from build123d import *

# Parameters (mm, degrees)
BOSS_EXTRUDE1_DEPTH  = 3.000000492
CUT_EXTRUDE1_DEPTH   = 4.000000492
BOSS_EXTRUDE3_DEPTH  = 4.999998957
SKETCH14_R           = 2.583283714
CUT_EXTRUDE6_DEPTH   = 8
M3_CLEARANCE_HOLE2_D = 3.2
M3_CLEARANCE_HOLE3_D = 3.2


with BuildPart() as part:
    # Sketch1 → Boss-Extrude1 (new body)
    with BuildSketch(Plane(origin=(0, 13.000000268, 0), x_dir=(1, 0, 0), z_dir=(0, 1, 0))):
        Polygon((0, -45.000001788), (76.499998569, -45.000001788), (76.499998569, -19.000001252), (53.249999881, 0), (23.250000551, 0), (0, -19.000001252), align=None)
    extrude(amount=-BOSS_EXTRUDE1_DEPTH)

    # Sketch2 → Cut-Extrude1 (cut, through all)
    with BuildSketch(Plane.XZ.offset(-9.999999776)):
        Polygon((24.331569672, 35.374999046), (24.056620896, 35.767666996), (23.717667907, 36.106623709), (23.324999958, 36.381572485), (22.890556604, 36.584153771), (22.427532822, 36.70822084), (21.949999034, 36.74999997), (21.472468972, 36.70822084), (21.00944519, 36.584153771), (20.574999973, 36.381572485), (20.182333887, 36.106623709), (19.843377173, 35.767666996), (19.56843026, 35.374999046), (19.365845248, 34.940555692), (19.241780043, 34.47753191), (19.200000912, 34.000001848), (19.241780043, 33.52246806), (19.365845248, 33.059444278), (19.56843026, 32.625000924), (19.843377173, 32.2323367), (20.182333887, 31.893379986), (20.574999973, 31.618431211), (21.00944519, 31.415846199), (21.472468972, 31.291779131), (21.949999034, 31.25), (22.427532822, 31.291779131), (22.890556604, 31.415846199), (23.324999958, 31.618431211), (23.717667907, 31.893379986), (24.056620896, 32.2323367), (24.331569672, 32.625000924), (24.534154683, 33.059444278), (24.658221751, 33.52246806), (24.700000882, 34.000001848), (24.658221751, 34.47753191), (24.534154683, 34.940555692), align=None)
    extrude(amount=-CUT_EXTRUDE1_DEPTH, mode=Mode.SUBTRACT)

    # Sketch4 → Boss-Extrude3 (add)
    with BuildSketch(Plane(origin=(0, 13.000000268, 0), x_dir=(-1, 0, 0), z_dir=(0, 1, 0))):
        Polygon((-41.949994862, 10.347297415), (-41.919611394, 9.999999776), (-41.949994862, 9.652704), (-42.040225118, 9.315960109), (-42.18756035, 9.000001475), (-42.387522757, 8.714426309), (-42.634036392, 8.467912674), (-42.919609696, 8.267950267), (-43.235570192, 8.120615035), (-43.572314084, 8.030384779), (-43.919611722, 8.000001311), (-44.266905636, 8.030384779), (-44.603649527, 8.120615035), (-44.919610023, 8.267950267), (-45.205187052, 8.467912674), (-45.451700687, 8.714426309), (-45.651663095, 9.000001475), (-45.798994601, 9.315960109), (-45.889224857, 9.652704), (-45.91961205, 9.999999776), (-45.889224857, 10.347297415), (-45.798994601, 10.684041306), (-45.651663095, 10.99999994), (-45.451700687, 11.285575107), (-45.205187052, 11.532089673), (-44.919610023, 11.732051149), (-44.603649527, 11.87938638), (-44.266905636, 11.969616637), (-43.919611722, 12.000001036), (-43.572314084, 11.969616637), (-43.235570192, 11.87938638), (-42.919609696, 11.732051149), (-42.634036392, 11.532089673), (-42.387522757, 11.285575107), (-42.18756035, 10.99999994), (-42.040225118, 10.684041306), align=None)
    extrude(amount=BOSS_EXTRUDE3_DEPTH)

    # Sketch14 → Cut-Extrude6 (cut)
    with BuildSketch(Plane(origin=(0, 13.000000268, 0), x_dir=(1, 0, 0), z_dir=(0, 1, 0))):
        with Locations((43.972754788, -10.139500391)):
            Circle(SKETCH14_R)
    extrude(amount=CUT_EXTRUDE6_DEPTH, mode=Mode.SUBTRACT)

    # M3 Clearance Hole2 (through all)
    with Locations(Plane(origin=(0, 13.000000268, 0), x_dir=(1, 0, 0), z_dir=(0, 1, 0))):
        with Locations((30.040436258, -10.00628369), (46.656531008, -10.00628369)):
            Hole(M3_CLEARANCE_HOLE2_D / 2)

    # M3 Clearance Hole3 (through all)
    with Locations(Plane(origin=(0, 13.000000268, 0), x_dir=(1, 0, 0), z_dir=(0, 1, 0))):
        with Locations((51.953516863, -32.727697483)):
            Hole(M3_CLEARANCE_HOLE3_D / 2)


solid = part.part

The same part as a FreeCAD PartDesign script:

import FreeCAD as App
import Part
import Sketcher
from FreeCAD import Vector
Q = App.Units.Quantity


def add_polygon(sketch, points):
    """Adds a closed chain of lines whose ends are joined by coincident constraints."""
    first, n = sketch.GeometryCount, len(points)
    for a, b in zip(points, points[1:] + points[:1]):
        sketch.addGeometry(Part.LineSegment(App.Vector(*a, 0), App.Vector(*b, 0)), False)
    for i in range(n):
        sketch.addConstraint(Sketcher.Constraint("Coincident", first + i, 2, first + (i + 1) % n, 1))

doc = App.newDocument("Part")
body = doc.addObject("PartDesign::Body", "Body")

# Sketch on XZ plane
sketch1 = body.newObject("Sketcher::SketchObject", "Sketch")
sketch1.AttachmentSupport = (doc.getObject("XZ_Plane"), [""])
sketch1.MapMode = "FlatFace"
sketch1.AttachmentOffset = App.Placement(Vector(0, 0, -13), App.Rotation())
add_polygon(sketch1, [(0, 45), (76, 45), (76, 19), (53, 0), (23, 0), (0, 19)])  # lines 0-5
sketch1.addConstraint(Sketcher.Constraint("Horizontal", 0))
sketch1.addConstraint(Sketcher.Constraint("Vertical", 1))
sketch1.addConstraint(Sketcher.Constraint("Horizontal", 3))
sketch1.addConstraint(Sketcher.Constraint("Vertical", 5))
sketch1.addConstraint(Sketcher.Constraint("PointOnObject", 2, 2, -1))
sketch1.addConstraint(Sketcher.Constraint("PointOnObject", 4, 2, -2))
sketch1.addConstraint(Sketcher.Constraint("Horizontal", 1, 2, 4, 2))
sketch1.addConstraint(Sketcher.Constraint("Equal", 2, 4))
sketch1.addConstraint(Sketcher.Constraint("DistanceX", 3, 2, 3, 1, 29.999999))
sketch1.addConstraint(Sketcher.Constraint("DistanceY", 1, 2, 1, 1, 26.000001))
sketch1.addConstraint(Sketcher.Constraint("DistanceX", 0, 1, 0, 2, 76.499999))
sketch1.addConstraint(Sketcher.Constraint("DistanceY", -1, 1, 0, 2, 45.000002))
pad1 = body.newObject("PartDesign::Pad", "Pad")
pad1.Profile = sketch1
pad1.Length = 3

# Sketch on XZ plane
sketch2 = body.newObject("Sketcher::SketchObject", "Sketch001")
sketch2.AttachmentSupport = (doc.getObject("XZ_Plane"), [""])
sketch2.MapMode = "FlatFace"
sketch2.AttachmentOffset = App.Placement(Vector(0, 0, -10), App.Rotation())
add_polygon(sketch2, [(24.33, 35.37), (24.06, 35.77), (23.72, 36.11), (23.32, 36.38), (22.89, 36.58), (22.43, 36.71), (21.95, 36.75), (21.47, 36.71), (21.01, 36.58), (20.57, 36.38), (20.18, 36.11), (19.84, 35.77), (19.57, 35.37), (19.37, 34.94), (19.24, 34.48), (19.2, 34), (19.24, 33.52), (19.37, 33.06), (19.57, 32.63), (19.84, 32.23), (20.18, 31.89), (20.57, 31.62), (21.01, 31.42), (21.47, 31.29), (21.95, 31.25), (22.43, 31.29), (22.89, 31.42), (23.32, 31.62), (23.72, 31.89), (24.06, 32.23), (24.33, 32.63), (24.53, 33.06), (24.66, 33.52), (24.7, 34), (24.66, 34.48), (24.53, 34.94)])  # lines 0-35
sketch2.addConstraint(Sketcher.Constraint("Perpendicular", 5, 14))
sketch2.addConstraint(Sketcher.Constraint("Perpendicular", 6, 15))
sketch2.addConstraint(Sketcher.Constraint("Perpendicular", 9, 18))
sketch2.addConstraint(Sketcher.Constraint("Perpendicular", 10, 19))
sketch2.addConstraint(Sketcher.Constraint("Perpendicular", 12, 21))
sketch2.addConstraint(Sketcher.Constraint("Parallel", 4, 22))
sketch2.addConstraint(Sketcher.Constraint("Perpendicular", 14, 23))
sketch2.addConstraint(Sketcher.Constraint("Perpendicular", 15, 24))
sketch2.addConstraint(Sketcher.Constraint("Parallel", 7, 25))
sketch2.addConstraint(Sketcher.Constraint("Perpendicular", 17, 26))
sketch2.addConstraint(Sketcher.Constraint("Perpendicular", 18, 27))
sketch2.addConstraint(Sketcher.Constraint("Perpendicular", 21, 30))
sketch2.addConstraint(Sketcher.Constraint("Perpendicular", 22, 31))
sketch2.addConstraint(Sketcher.Constraint("Perpendicular", 23, 32))
sketch2.addConstraint(Sketcher.Constraint("Perpendicular", 24, 33))
sketch2.addConstraint(Sketcher.Constraint("Perpendicular", 25, 34))
sketch2.addConstraint(Sketcher.Constraint("Perpendicular", 26, 35))
sketch2.addConstraint(Sketcher.Constraint("Horizontal", 4, 2, 6, 2))
sketch2.addConstraint(Sketcher.Constraint("Horizontal", 3, 2, 7, 2))
sketch2.addConstraint(Sketcher.Constraint("Horizontal", 2, 2, 8, 2))
sketch2.addConstraint(Sketcher.Constraint("Horizontal", 1, 2, 9, 2))
sketch2.addConstraint(Sketcher.Constraint("Horizontal", 0, 2, 10, 2))
sketch2.addConstraint(Sketcher.Constraint("Horizontal", 22, 2, 24, 2))
sketch2.addConstraint(Sketcher.Constraint("Horizontal", 21, 2, 25, 2))
sketch2.addConstraint(Sketcher.Constraint("Horizontal", 20, 2, 26, 2))
sketch2.addConstraint(Sketcher.Constraint("Horizontal", 19, 2, 27, 2))
sketch2.addConstraint(Sketcher.Constraint("Horizontal", 18, 2, 28, 2))
sketch2.addConstraint(Sketcher.Constraint("Horizontal", 17, 2, 29, 2))
sketch2.addConstraint(Sketcher.Constraint("Horizontal", 16, 2, 30, 2))
sketch2.addConstraint(Sketcher.Constraint("Horizontal", 15, 2, 31, 2))
sketch2.addConstraint(Sketcher.Constraint("Horizontal", 14, 2, 32, 2))
sketch2.addConstraint(Sketcher.Constraint("Horizontal", 13, 2, 33, 2))
sketch2.addConstraint(Sketcher.Constraint("Horizontal", 12, 2, 34, 2))
sketch2.addConstraint(Sketcher.Constraint("Horizontal", 11, 2, 35, 2))
sketch2.addConstraint(Sketcher.Constraint("Vertical", 13, 2, 15, 2))
sketch2.addConstraint(Sketcher.Constraint("Vertical", 12, 2, 16, 2))
sketch2.addConstraint(Sketcher.Constraint("Vertical", 11, 2, 17, 2))
sketch2.addConstraint(Sketcher.Constraint("Vertical", 10, 2, 18, 2))
sketch2.addConstraint(Sketcher.Constraint("Vertical", 9, 2, 19, 2))
sketch2.addConstraint(Sketcher.Constraint("Vertical", 8, 2, 20, 2))
sketch2.addConstraint(Sketcher.Constraint("Vertical", 7, 2, 21, 2))
sketch2.addConstraint(Sketcher.Constraint("Vertical", 6, 2, 22, 2))
sketch2.addConstraint(Sketcher.Constraint("Vertical", 5, 2, 23, 2))
sketch2.addConstraint(Sketcher.Constraint("Vertical", 4, 2, 24, 2))
sketch2.addConstraint(Sketcher.Constraint("Vertical", 3, 2, 25, 2))
sketch2.addConstraint(Sketcher.Constraint("Vertical", 2, 2, 26, 2))
sketch2.addConstraint(Sketcher.Constraint("Vertical", 1, 2, 27, 2))
sketch2.addConstraint(Sketcher.Constraint("Vertical", 0, 2, 28, 2))
sketch2.addConstraint(Sketcher.Constraint("Vertical", 30, 2, 34, 2))
sketch2.addConstraint(Sketcher.Constraint("Vertical", 29, 2, 35, 2))
sketch2.addConstraint(Sketcher.Constraint("Equal", 0, 2))
sketch2.addConstraint(Sketcher.Constraint("Equal", 1, 3))
sketch2.addConstraint(Sketcher.Constraint("Equal", 2, 4))
sketch2.addConstraint(Sketcher.Constraint("Equal", 4, 5))
sketch2.addConstraint(Sketcher.Constraint("Equal", 3, 6))
sketch2.addConstraint(Sketcher.Constraint("Equal", 8, 9))
sketch2.addConstraint(Sketcher.Constraint("Equal", 9, 10))
sketch2.addConstraint(Sketcher.Constraint("Equal", 10, 11))
sketch2.addConstraint(Sketcher.Constraint("Equal", 10, 12))
sketch2.addConstraint(Sketcher.Constraint("Equal", 12, 13))
sketch2.addConstraint(Sketcher.Constraint("Equal", 12, 14))
sketch2.addConstraint(Sketcher.Constraint("Equal", 17, 18))
sketch2.addConstraint(Sketcher.Constraint("Equal", 17, 19))
sketch2.addConstraint(Sketcher.Constraint("Equal", 20, 21))
sketch2.addConstraint(Sketcher.Constraint("Equal", 29, 31))
sketch2.addConstraint(Sketcher.Constraint("Angle", 21, Q("-24.999987 deg")))
sketch2.addConstraint(Sketcher.Constraint("DistanceY", -1, 1, 14, 2, 34.000002))
sketch2.addConstraint(Sketcher.Constraint("DistanceX", -1, 1, 14, 2, 19.200001))
sketch2.addConstraint(Sketcher.Constraint("DistanceX", -1, 1, 32, 2, 24.700001))
sketch2.addConstraint(Sketcher.Constraint("DistanceX", -1, 1, 2, 2, 23.325))
sketch2.addConstraint(Sketcher.Constraint("DistanceX", 6, 2, 1, 2, 2.245199))
sketch2.addConstraint(Sketcher.Constraint("DistanceX", 12, 2, 7, 2, 1.6436))
pocket1 = body.newObject("PartDesign::Pocket", "Pocket")
pocket1.Profile = sketch2
pocket1.Type = "ThroughAll"

# Sketch on XZ plane
sketch3 = body.newObject("Sketcher::SketchObject", "Sketch002")
sketch3.AttachmentSupport = (doc.getObject("XZ_Plane"), [""])
sketch3.MapMode = "FlatFace"
sketch3.AttachmentOffset = App.Placement(Vector(0, 0, -13), App.Rotation())
add_polygon(sketch3, [(41.919611, 10), (41.949995, 10.347297), (42.040225, 10.684041), (42.18756, 11), (42.387523, 11.285575), (42.634036, 11.53209), (42.91961, 11.732051), (43.23557, 11.879386), (43.572314, 11.969617), (43.919612, 12.000001), (44.266906, 11.969617), (44.60365, 11.879386), (44.91961, 11.732051), (45.205187, 11.53209), (45.451701, 11.285575), (45.651663, 11), (45.798995, 10.684041), (45.889225, 10.347297), (45.919612, 10), (45.889225, 9.652704), (45.798995, 9.31596), (45.651663, 9.000001), (45.451701, 8.714426), (45.205187, 8.467913), (44.91961, 8.26795), (44.60365, 8.120615), (44.266906, 8.030385), (43.919612, 8.000001), (43.572314, 8.030385), (43.23557, 8.120615), (42.91961, 8.26795), (42.634036, 8.467913), (42.387523, 8.714426), (42.18756, 9.000001), (42.040225, 9.31596), (41.949995, 9.652704)])  # lines 0-35
sketch3.addConstraint(Sketcher.Constraint("DistanceY", -1, 1, 2, 2, 11.0))
sketch3.addConstraint(Sketcher.Constraint("DistanceY", -1, 1, 8, 2, 12.000001))
sketch3.addConstraint(Sketcher.Constraint("DistanceY", -1, 1, 14, 2, 11.0))
sketch3.addConstraint(Sketcher.Constraint("DistanceY", -1, 1, 17, 2, 10.0))
sketch3.addConstraint(Sketcher.Constraint("DistanceY", -1, 1, 20, 2, 9.000001))
sketch3.addConstraint(Sketcher.Constraint("DistanceY", -1, 1, 26, 2, 8.000001))
sketch3.addConstraint(Sketcher.Constraint("DistanceY", -1, 1, 32, 2, 9.000001))
sketch3.addConstraint(Sketcher.Constraint("DistanceY", -1, 1, 35, 2, 10.0))
sketch3.addConstraint(Sketcher.Constraint("DistanceX", 8, 2, 11, 2, 0.999998))
sketch3.addConstraint(Sketcher.Constraint("DistanceX", 26, 2, 23, 2, 0.999998))
sketch3.addConstraint(Sketcher.Constraint("DistanceX", -1, 1, 13, 2, 45.451701))
sketch3.addConstraint(Sketcher.Constraint("DistanceX", -1, 1, 21, 2, 45.451701))
sketch3.addConstraint(Sketcher.Constraint("Distance", 5, 0.348621))
sketch3.addConstraint(Sketcher.Constraint("Distance", 9, 0.348621))
sketch3.addConstraint(Sketcher.Constraint("Distance", 15, 0.348621))
sketch3.addConstraint(Sketcher.Constraint("Distance", 20, 0.348621))
sketch3.addConstraint(Sketcher.Constraint("Distance", 26, 0.34862))
sketch3.addConstraint(Sketcher.Constraint("Distance", 30, 0.348622))
sketch3.addConstraint(Sketcher.Constraint("DistanceY", -1, 1, 1, 2, 10.684041))
sketch3.addConstraint(Sketcher.Constraint("DistanceX", -1, 1, 2, 2, 42.18756))
sketch3.addConstraint(Sketcher.Constraint("DistanceY", -1, 1, 4, 2, 11.53209))
sketch3.addConstraint(Sketcher.Constraint("DistanceX", -1, 1, 5, 2, 42.91961))
sketch3.addConstraint(Sketcher.Constraint("DistanceY", -1, 1, 5, 2, 11.732051))
sketch3.addConstraint(Sketcher.Constraint("DistanceX", -1, 1, 6, 2, 43.23557))
sketch3.addConstraint(Sketcher.Constraint("DistanceX", -1, 1, 8, 2, 43.919612))
sketch3.addConstraint(Sketcher.Constraint("DistanceX", -1, 1, 10, 2, 44.60365))
sketch3.addConstraint(Sketcher.Constraint("DistanceY", -1, 1, 11, 2, 11.732051))
sketch3.addConstraint(Sketcher.Constraint("DistanceY", -1, 1, 12, 2, 11.53209))
sketch3.addConstraint(Sketcher.Constraint("DistanceY", -1, 1, 15, 2, 10.684041))
sketch3.addConstraint(Sketcher.Constraint("DistanceY", -1, 1, 19, 2, 9.31596))
sketch3.addConstraint(Sketcher.Constraint("DistanceX", -1, 1, 23, 2, 44.91961))
sketch3.addConstraint(Sketcher.Constraint("DistanceY", -1, 1, 23, 2, 8.26795))
sketch3.addConstraint(Sketcher.Constraint("DistanceX", -1, 1, 24, 2, 44.60365))
sketch3.addConstraint(Sketcher.Constraint("DistanceX", -1, 1, 28, 2, 43.23557))
sketch3.addConstraint(Sketcher.Constraint("DistanceX", -1, 1, 29, 2, 42.91961))
sketch3.addConstraint(Sketcher.Constraint("DistanceY", -1, 1, 29, 2, 8.26795))
sketch3.addConstraint(Sketcher.Constraint("DistanceX", -1, 1, 32, 2, 42.18756))
sketch3.addConstraint(Sketcher.Constraint("DistanceY", -1, 1, 33, 2, 9.31596))
sketch3.addConstraint(Sketcher.Constraint("DistanceX", -1, 1, 35, 2, 41.919611))
sketch3.addConstraint(Sketcher.Constraint("DistanceX", 0, 2, 1, 2, 0.09023))
sketch3.addConstraint(Sketcher.Constraint("DistanceX", 1, 2, 4, 2, 0.593811))
sketch3.addConstraint(Sketcher.Constraint("DistanceY", 3, 2, 6, 2, 0.593811))
sketch3.addConstraint(Sketcher.Constraint("DistanceY", 6, 2, 7, 2, 0.09023))
sketch3.addConstraint(Sketcher.Constraint("DistanceX", 3, 2, 7, 2, 1.184791))
sketch3.addConstraint(Sketcher.Constraint("DistanceX", 3, 2, 8, 2, 1.532089))
sketch3.addConstraint(Sketcher.Constraint("DistanceX", 7, 2, 9, 2, 0.694592))
sketch3.addConstraint(Sketcher.Constraint("DistanceY", 6, 2, 9, 2, 0.09023))
sketch3.addConstraint(Sketcher.Constraint("DistanceY", 10, 2, 9, 2, 0.09023))
sketch3.addConstraint(Sketcher.Constraint("DistanceX", 9, 2, 12, 2, 0.938281))
sketch3.addConstraint(Sketcher.Constraint("DistanceY", 13, 2, 10, 2, 0.593811))
sketch3.addConstraint(Sketcher.Constraint("DistanceX", 15, 2, 16, 2, 0.09023))
sketch3.addConstraint(Sketcher.Constraint("DistanceX", 14, 2, 17, 2, 0.267949))
sketch3.addConstraint(Sketcher.Constraint("DistanceX", 13, 2, 17, 2, 0.467911))
sketch3.addConstraint(Sketcher.Constraint("DistanceX", 15, 2, 18, 2, 0.09023))
sketch3.addConstraint(Sketcher.Constraint("DistanceY", 18, 2, 13, 2, 1.632871))
sketch3.addConstraint(Sketcher.Constraint("DistanceX", 19, 2, 18, 2, 0.09023))
sketch3.addConstraint(Sketcher.Constraint("DistanceY", 21, 2, 16, 2, 1.632871))
sketch3.addConstraint(Sketcher.Constraint("DistanceY", 22, 2, 20, 2, 0.532089))
sketch3.addConstraint(Sketcher.Constraint("DistanceY", 24, 2, 21, 2, 0.593811))
sketch3.addConstraint(Sketcher.Constraint("DistanceY", 25, 2, 24, 2, 0.09023))
sketch3.addConstraint(Sketcher.Constraint("DistanceX", 25, 2, 22, 2, 0.938281))
sketch3.addConstraint(Sketcher.Constraint("DistanceX", 27, 2, 25, 2, 0.694592))
sketch3.addConstraint(Sketcher.Constraint("DistanceY", 27, 2, 24, 2, 0.09023))
sketch3.addConstraint(Sketcher.Constraint("DistanceY", 27, 2, 28, 2, 0.09023))
sketch3.addConstraint(Sketcher.Constraint("DistanceY", 26, 2, 30, 2, 0.467911))
sketch3.addConstraint(Sketcher.Constraint("DistanceX", 30, 2, 25, 2, 1.632869))
sketch3.addConstraint(Sketcher.Constraint("DistanceY", 28, 2, 31, 2, 0.593811))
sketch3.addConstraint(Sketcher.Constraint("DistanceX", 31, 2, 27, 2, 1.184791))
sketch3.addConstraint(Sketcher.Constraint("DistanceY", 31, 2, 0, 2, 1.632871))
sketch3.addConstraint(Sketcher.Constraint("DistanceX", 33, 2, 30, 2, 0.593811))
sketch3.addConstraint(Sketcher.Constraint("DistanceX", 34, 2, 33, 2, 0.09023))
sketch3.addConstraint(Sketcher.Constraint("Distance", 34, 0.348623))
pad2 = body.newObject("PartDesign::Pad", "Pad001")
pad2.Profile = sketch3
pad2.Length = 4.999999
pad2.Reversed = True

# Sketch on XZ plane
sketch4 = body.newObject("Sketcher::SketchObject", "Sketch003")
sketch4.AttachmentSupport = (doc.getObject("XZ_Plane"), [""])
sketch4.MapMode = "FlatFace"
sketch4.AttachmentOffset = App.Placement(Vector(0, 0, -13), App.Rotation())
sketch4.addGeometry(Part.Circle(Vector(44, 10.1, 0), Vector(0, 0, 1), 2.6), False)
sketch4.addConstraint(Sketcher.Constraint("Diameter", 0, 5.166567))
sketch4.addConstraint(Sketcher.Constraint("DistanceY", -1, 1, 0, 3, 10.1395))
sketch4.addConstraint(Sketcher.Constraint("DistanceX", -1, 1, 0, 3, 43.972755))
pocket2 = body.newObject("PartDesign::Pocket", "Pocket001")
pocket2.Profile = sketch4
pocket2.Length = 8

# Sketch on XZ plane
sketch5 = body.newObject("Sketcher::SketchObject", "Sketch004")
sketch5.AttachmentSupport = (doc.getObject("XZ_Plane"), [""])
sketch5.MapMode = "FlatFace"
sketch5.AttachmentOffset = App.Placement(Vector(0, 0, -13), App.Rotation())
sketch5.addGeometry(Part.Circle(Vector(30, 10, 0), Vector(0, 0, 1), 1.6), False)
sketch5.addGeometry(Part.Circle(Vector(46.7, 10, 0), Vector(0, 0, 1), 1.6), False)
sketch5.addConstraint(Sketcher.Constraint("Equal", 0, 1))
sketch5.addConstraint(Sketcher.Constraint("Horizontal", 0, 3, 1, 3))
sketch5.addConstraint(Sketcher.Constraint("Diameter", 0, 3.2))
sketch5.addConstraint(Sketcher.Constraint("DistanceX", -1, 1, 1, 3, 46.656531))
sketch5.addConstraint(Sketcher.Constraint("DistanceX", -1, 1, 0, 3, 30.040436))
sketch5.addConstraint(Sketcher.Constraint("DistanceY", -1, 1, 0, 3, 10.006284))
doc.recompute()
hole = body.newObject("PartDesign::Hole", "Hole")
hole.Profile = sketch5
hole.ThreadType = "None"
hole.Diameter = 3.2
hole.DepthType = "ThroughAll"
hole.Reversed = True

# Sketch on XZ plane
sketch6 = body.newObject("Sketcher::SketchObject", "Sketch005")
sketch6.AttachmentSupport = (doc.getObject("XZ_Plane"), [""])
sketch6.MapMode = "FlatFace"
sketch6.AttachmentOffset = App.Placement(Vector(0, 0, -13), App.Rotation())
sketch6.addGeometry(Part.Circle(Vector(52, 32.7, 0), Vector(0, 0, 1), 1.6), False)
sketch6.addConstraint(Sketcher.Constraint("Diameter", 0, 3.2))
sketch6.addConstraint(Sketcher.Constraint("DistanceX", -1, 1, 0, 3, 51.953517))
sketch6.addConstraint(Sketcher.Constraint("DistanceY", -1, 1, 0, 3, 32.727697))
doc.recompute()
hole2 = body.newObject("PartDesign::Hole", "Hole001")
hole2.Profile = sketch6
hole2.ThreadType = "None"
hole2.Diameter = 3.2
hole2.DepthType = "ThroughAll"
hole2.Reversed = True

doc.recompute()
